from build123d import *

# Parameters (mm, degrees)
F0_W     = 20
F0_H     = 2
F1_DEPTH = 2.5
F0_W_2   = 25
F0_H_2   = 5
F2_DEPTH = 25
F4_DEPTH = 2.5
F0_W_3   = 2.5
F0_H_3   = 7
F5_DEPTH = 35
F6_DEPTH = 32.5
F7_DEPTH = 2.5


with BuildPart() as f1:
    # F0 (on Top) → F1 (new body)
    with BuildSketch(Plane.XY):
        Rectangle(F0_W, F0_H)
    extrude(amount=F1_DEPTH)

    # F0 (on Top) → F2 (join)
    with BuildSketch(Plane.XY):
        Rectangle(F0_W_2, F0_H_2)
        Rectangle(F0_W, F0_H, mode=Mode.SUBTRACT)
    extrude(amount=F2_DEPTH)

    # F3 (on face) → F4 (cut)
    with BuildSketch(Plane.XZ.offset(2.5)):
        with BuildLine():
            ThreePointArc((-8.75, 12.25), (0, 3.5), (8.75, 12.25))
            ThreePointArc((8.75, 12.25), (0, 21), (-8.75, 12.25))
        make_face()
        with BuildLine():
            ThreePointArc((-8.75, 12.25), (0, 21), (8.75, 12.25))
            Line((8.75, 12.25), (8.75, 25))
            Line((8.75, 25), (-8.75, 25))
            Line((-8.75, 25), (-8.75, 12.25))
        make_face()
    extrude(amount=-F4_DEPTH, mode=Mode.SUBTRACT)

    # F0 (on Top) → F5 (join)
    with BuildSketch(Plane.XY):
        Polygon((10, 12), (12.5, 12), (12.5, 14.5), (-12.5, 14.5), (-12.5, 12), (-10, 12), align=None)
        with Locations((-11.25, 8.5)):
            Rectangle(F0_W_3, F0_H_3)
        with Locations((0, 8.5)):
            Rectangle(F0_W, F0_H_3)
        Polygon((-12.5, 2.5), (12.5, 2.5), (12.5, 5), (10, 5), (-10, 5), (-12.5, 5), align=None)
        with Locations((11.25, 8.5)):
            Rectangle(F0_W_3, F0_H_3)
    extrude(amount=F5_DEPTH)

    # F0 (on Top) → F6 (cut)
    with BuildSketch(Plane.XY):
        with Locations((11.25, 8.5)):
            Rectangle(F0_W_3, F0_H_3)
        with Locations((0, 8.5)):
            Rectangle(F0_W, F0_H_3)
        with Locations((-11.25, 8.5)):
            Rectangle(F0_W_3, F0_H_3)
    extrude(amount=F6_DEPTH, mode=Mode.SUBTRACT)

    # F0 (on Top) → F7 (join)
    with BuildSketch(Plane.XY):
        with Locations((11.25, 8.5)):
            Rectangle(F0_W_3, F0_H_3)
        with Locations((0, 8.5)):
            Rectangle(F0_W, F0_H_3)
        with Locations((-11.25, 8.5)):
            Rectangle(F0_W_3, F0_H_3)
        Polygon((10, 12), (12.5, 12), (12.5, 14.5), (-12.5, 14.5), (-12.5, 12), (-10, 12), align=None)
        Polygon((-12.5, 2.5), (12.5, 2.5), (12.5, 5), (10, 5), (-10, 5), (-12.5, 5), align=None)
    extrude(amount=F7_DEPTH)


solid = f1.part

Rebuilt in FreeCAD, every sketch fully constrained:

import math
import FreeCAD as App
import Part
import Sketcher

V = App.Vector


def add_polygon(sketch, points):
    """Adds a closed chain of lines whose ends are joined by coincident constraints."""
    first, n = sketch.GeometryCount, len(points)
    for a, b in zip(points, points[1:] + points[:1]):
        sketch.addGeometry(Part.LineSegment(App.Vector(*a, 0), App.Vector(*b, 0)), False)
    for i in range(n):
        sketch.addConstraint(Sketcher.Constraint("Coincident", first + i, 2, first + (i + 1) % n, 1))

doc = App.newDocument("Part")
body = doc.addObject("PartDesign::Body", "Body")

# Sketch on XY plane
sketch1 = body.newObject("Sketcher::SketchObject", "Sketch")
sketch1.AttachmentSupport = (doc.getObject("XY_Plane"), [""])
sketch1.MapMode = "FlatFace"
add_polygon(sketch1, [(-10, 1), (-10, -1), (10, -1), (10, 1)])  # lines 0-3
sketch1.addConstraint([
    Sketcher.Constraint("Vertical", 0),
    Sketcher.Constraint("Horizontal", 1),
    Sketcher.Constraint("Vertical", 2),
    Sketcher.Constraint("Horizontal", 3),
    Sketcher.Constraint("Symmetric", 0, 2, 2, 2, -1, 1),
    Sketcher.Constraint("DistanceX", 1, 1, 1, 2, 20.0),
    Sketcher.Constraint("DistanceY", 0, 2, 0, 1, 2.0),
])
pad1 = body.newObject("PartDesign::Pad", "Pad")
pad1.Profile = sketch1
pad1.Length = 2.5

# Sketch on XY plane
sketch2 = body.newObject("Sketcher::SketchObject", "Sketch001")
sketch2.AttachmentSupport = (doc.getObject("XY_Plane"), [""])
sketch2.MapMode = "FlatFace"
add_polygon(sketch2, [(-12.5, 2.5), (-12.5, -2.5), (12.5, -2.5), (12.5, 2.5)])  # lines 0-3
add_polygon(sketch2, [(10, -1), (-10, -1), (-10, 1), (10, 1)])  # lines 4-7
sketch2.addConstraint([
    Sketcher.Constraint("Vertical", 0),
    Sketcher.Constraint("Horizontal", 1),
    Sketcher.Constraint("Vertical", 2),
    Sketcher.Constraint("Horizontal", 3),
    Sketcher.Constraint("Horizontal", 4),
    Sketcher.Constraint("Vertical", 5),
    Sketcher.Constraint("Horizontal", 6),
    Sketcher.Constraint("Vertical", 7),
    Sketcher.Constraint("Symmetric", 0, 2, 2, 2, -1, 1),
    Sketcher.Constraint("Symmetric", 4, 2, 6, 2, -1, 1),
    Sketcher.Constraint("DistanceX", 1, 1, 1, 2, 25.0),
    Sketcher.Constraint("DistanceX", 4, 2, 4, 1, 20.0),
    Sketcher.Constraint("DistanceY", 0, 2, 0, 1, 5.0),
    Sketcher.Constraint("DistanceY", 5, 1, 5, 2, 2.0),
])
pad2 = body.newObject("PartDesign::Pad", "Pad001")
pad2.Profile = sketch2
pad2.Length = 25

# Sketch on XZ plane
sketch3 = body.newObject("Sketcher::SketchObject", "Sketch002")
sketch3.AttachmentSupport = (doc.getObject("XZ_Plane"), [""])
sketch3.MapMode = "FlatFace"
sketch3.AttachmentOffset = App.Placement(V(0, 0, 2.5), App.Rotation())
sketch3.addGeometry([
    Part.ArcOfCircle(Part.Circle(V(0, 12.25, 0), V(0, 0, 1), 8.75), math.radians(180), math.radians(360)),
    Part.LineSegment(V(8.75, 12.25, 0), V(8.75, 25, 0)),
    Part.LineSegment(V(8.75, 25, 0), V(-8.75, 25, 0)),
    Part.LineSegment(V(-8.75, 25, 0), V(-8.75, 12.25, 0)),
], False)
sketch3.addConstraint([
    Sketcher.Constraint("Tangent", 0, 2, 1, 1),
    Sketcher.Constraint("Coincident", 1, 2, 2, 1),
    Sketcher.Constraint("Coincident", 2, 2, 3, 1),
    Sketcher.Constraint("Tangent", 3, 2, 0, 1),
    Sketcher.Constraint("Vertical", 1),
    Sketcher.Constraint("Horizontal", 2),
    Sketcher.Constraint("Vertical", 3),
    Sketcher.Constraint("PointOnObject", 0, 3, -2),
    Sketcher.Constraint("Radius", 0, 8.75),
    Sketcher.Constraint("DistanceY", -1, 1, 1, 2, 25.0),
    Sketcher.Constraint("DistanceY", 1, 1, 1, 2, 12.75),
])
pocket1 = body.newObject("PartDesign::Pocket", "Pocket")
pocket1.Profile = sketch3
pocket1.Length = 2.5

# Sketch on XY plane
sketch4 = body.newObject("Sketcher::SketchObject", "Sketch003")
sketch4.AttachmentSupport = (doc.getObject("XY_Plane"), [""])
sketch4.MapMode = "FlatFace"
add_polygon(sketch4, [(12.5, 14.5), (-12.5, 14.5), (-12.5, 2.5), (12.5, 2.5)])  # lines 0-3
sketch4.addConstraint([
    Sketcher.Constraint("Horizontal", 0),
    Sketcher.Constraint("Vertical", 1),
    Sketcher.Constraint("Horizontal", 2),
    Sketcher.Constraint("Vertical", 3),
    Sketcher.Constraint("DistanceX", 0, 2, 0, 1, 25.0),
    Sketcher.Constraint("DistanceY", 1, 2, 1, 1, 12.0),
    Sketcher.Constraint("DistanceX", 0, 2, -1, 1, 12.5),
    Sketcher.Constraint("DistanceY", -1, 1, 0, 2, 14.5),
])
pad3 = body.newObject("PartDesign::Pad", "Pad002")
pad3.Profile = sketch4
pad3.Length = 35

# Sketch on XY plane
sketch5 = body.newObject("Sketcher::SketchObject", "Sketch004")
sketch5.AttachmentSupport = (doc.getObject("XY_Plane"), [""])
sketch5.MapMode = "FlatFace"
add_polygon(sketch5, [(12.5, 5), (12.5, 12), (-12.5, 12), (-12.5, 5)])  # lines 0-3
sketch5.addConstraint([
    Sketcher.Constraint("Vertical", 0),
    Sketcher.Constraint("Horizontal", 1),
    Sketcher.Constraint("Vertical", 2),
    Sketcher.Constraint("Horizontal", 3),
    Sketcher.Constraint("DistanceX", 1, 2, 1, 1, 25.0),
    Sketcher.Constraint("DistanceY", 0, 1, 0, 2, 7.0),
    Sketcher.Constraint("DistanceY", -1, 1, 0, 2, 12.0),
    Sketcher.Constraint("DistanceX", -1, 1, 0, 2, 12.5),
])
pocket2 = body.newObject("PartDesign::Pocket", "Pocket001")
pocket2.Profile = sketch5
pocket2.Length = 32.5
pocket2.Reversed = True

# Sketch on XY plane
sketch6 = body.newObject("Sketcher::SketchObject", "Sketch005")
sketch6.AttachmentSupport = (doc.getObject("XY_Plane"), [""])
sketch6.MapMode = "FlatFace"
add_polygon(sketch6, [(12.5, 14.5), (-12.5, 14.5), (-12.5, 2.5), (12.5, 2.5)])  # lines 0-3
sketch6.addConstraint([
    Sketcher.Constraint("Horizontal", 0),
    Sketcher.Constraint("Vertical", 1),
    Sketcher.Constraint("Horizontal", 2),
    Sketcher.Constraint("Vertical", 3),
    Sketcher.Constraint("DistanceX", 0, 2, 0, 1, 25.0),
    Sketcher.Constraint("DistanceY", 1, 2, 1, 1, 12.0),
    Sketcher.Constraint("DistanceX", 0, 2, -1, 1, 12.5),
    Sketcher.Constraint("DistanceY", -1, 1, 0, 2, 14.5),
])
pad4 = body.newObject("PartDesign::Pad", "Pad003")
pad4.Profile = sketch6
pad4.Length = 2.5

doc.recompute()
